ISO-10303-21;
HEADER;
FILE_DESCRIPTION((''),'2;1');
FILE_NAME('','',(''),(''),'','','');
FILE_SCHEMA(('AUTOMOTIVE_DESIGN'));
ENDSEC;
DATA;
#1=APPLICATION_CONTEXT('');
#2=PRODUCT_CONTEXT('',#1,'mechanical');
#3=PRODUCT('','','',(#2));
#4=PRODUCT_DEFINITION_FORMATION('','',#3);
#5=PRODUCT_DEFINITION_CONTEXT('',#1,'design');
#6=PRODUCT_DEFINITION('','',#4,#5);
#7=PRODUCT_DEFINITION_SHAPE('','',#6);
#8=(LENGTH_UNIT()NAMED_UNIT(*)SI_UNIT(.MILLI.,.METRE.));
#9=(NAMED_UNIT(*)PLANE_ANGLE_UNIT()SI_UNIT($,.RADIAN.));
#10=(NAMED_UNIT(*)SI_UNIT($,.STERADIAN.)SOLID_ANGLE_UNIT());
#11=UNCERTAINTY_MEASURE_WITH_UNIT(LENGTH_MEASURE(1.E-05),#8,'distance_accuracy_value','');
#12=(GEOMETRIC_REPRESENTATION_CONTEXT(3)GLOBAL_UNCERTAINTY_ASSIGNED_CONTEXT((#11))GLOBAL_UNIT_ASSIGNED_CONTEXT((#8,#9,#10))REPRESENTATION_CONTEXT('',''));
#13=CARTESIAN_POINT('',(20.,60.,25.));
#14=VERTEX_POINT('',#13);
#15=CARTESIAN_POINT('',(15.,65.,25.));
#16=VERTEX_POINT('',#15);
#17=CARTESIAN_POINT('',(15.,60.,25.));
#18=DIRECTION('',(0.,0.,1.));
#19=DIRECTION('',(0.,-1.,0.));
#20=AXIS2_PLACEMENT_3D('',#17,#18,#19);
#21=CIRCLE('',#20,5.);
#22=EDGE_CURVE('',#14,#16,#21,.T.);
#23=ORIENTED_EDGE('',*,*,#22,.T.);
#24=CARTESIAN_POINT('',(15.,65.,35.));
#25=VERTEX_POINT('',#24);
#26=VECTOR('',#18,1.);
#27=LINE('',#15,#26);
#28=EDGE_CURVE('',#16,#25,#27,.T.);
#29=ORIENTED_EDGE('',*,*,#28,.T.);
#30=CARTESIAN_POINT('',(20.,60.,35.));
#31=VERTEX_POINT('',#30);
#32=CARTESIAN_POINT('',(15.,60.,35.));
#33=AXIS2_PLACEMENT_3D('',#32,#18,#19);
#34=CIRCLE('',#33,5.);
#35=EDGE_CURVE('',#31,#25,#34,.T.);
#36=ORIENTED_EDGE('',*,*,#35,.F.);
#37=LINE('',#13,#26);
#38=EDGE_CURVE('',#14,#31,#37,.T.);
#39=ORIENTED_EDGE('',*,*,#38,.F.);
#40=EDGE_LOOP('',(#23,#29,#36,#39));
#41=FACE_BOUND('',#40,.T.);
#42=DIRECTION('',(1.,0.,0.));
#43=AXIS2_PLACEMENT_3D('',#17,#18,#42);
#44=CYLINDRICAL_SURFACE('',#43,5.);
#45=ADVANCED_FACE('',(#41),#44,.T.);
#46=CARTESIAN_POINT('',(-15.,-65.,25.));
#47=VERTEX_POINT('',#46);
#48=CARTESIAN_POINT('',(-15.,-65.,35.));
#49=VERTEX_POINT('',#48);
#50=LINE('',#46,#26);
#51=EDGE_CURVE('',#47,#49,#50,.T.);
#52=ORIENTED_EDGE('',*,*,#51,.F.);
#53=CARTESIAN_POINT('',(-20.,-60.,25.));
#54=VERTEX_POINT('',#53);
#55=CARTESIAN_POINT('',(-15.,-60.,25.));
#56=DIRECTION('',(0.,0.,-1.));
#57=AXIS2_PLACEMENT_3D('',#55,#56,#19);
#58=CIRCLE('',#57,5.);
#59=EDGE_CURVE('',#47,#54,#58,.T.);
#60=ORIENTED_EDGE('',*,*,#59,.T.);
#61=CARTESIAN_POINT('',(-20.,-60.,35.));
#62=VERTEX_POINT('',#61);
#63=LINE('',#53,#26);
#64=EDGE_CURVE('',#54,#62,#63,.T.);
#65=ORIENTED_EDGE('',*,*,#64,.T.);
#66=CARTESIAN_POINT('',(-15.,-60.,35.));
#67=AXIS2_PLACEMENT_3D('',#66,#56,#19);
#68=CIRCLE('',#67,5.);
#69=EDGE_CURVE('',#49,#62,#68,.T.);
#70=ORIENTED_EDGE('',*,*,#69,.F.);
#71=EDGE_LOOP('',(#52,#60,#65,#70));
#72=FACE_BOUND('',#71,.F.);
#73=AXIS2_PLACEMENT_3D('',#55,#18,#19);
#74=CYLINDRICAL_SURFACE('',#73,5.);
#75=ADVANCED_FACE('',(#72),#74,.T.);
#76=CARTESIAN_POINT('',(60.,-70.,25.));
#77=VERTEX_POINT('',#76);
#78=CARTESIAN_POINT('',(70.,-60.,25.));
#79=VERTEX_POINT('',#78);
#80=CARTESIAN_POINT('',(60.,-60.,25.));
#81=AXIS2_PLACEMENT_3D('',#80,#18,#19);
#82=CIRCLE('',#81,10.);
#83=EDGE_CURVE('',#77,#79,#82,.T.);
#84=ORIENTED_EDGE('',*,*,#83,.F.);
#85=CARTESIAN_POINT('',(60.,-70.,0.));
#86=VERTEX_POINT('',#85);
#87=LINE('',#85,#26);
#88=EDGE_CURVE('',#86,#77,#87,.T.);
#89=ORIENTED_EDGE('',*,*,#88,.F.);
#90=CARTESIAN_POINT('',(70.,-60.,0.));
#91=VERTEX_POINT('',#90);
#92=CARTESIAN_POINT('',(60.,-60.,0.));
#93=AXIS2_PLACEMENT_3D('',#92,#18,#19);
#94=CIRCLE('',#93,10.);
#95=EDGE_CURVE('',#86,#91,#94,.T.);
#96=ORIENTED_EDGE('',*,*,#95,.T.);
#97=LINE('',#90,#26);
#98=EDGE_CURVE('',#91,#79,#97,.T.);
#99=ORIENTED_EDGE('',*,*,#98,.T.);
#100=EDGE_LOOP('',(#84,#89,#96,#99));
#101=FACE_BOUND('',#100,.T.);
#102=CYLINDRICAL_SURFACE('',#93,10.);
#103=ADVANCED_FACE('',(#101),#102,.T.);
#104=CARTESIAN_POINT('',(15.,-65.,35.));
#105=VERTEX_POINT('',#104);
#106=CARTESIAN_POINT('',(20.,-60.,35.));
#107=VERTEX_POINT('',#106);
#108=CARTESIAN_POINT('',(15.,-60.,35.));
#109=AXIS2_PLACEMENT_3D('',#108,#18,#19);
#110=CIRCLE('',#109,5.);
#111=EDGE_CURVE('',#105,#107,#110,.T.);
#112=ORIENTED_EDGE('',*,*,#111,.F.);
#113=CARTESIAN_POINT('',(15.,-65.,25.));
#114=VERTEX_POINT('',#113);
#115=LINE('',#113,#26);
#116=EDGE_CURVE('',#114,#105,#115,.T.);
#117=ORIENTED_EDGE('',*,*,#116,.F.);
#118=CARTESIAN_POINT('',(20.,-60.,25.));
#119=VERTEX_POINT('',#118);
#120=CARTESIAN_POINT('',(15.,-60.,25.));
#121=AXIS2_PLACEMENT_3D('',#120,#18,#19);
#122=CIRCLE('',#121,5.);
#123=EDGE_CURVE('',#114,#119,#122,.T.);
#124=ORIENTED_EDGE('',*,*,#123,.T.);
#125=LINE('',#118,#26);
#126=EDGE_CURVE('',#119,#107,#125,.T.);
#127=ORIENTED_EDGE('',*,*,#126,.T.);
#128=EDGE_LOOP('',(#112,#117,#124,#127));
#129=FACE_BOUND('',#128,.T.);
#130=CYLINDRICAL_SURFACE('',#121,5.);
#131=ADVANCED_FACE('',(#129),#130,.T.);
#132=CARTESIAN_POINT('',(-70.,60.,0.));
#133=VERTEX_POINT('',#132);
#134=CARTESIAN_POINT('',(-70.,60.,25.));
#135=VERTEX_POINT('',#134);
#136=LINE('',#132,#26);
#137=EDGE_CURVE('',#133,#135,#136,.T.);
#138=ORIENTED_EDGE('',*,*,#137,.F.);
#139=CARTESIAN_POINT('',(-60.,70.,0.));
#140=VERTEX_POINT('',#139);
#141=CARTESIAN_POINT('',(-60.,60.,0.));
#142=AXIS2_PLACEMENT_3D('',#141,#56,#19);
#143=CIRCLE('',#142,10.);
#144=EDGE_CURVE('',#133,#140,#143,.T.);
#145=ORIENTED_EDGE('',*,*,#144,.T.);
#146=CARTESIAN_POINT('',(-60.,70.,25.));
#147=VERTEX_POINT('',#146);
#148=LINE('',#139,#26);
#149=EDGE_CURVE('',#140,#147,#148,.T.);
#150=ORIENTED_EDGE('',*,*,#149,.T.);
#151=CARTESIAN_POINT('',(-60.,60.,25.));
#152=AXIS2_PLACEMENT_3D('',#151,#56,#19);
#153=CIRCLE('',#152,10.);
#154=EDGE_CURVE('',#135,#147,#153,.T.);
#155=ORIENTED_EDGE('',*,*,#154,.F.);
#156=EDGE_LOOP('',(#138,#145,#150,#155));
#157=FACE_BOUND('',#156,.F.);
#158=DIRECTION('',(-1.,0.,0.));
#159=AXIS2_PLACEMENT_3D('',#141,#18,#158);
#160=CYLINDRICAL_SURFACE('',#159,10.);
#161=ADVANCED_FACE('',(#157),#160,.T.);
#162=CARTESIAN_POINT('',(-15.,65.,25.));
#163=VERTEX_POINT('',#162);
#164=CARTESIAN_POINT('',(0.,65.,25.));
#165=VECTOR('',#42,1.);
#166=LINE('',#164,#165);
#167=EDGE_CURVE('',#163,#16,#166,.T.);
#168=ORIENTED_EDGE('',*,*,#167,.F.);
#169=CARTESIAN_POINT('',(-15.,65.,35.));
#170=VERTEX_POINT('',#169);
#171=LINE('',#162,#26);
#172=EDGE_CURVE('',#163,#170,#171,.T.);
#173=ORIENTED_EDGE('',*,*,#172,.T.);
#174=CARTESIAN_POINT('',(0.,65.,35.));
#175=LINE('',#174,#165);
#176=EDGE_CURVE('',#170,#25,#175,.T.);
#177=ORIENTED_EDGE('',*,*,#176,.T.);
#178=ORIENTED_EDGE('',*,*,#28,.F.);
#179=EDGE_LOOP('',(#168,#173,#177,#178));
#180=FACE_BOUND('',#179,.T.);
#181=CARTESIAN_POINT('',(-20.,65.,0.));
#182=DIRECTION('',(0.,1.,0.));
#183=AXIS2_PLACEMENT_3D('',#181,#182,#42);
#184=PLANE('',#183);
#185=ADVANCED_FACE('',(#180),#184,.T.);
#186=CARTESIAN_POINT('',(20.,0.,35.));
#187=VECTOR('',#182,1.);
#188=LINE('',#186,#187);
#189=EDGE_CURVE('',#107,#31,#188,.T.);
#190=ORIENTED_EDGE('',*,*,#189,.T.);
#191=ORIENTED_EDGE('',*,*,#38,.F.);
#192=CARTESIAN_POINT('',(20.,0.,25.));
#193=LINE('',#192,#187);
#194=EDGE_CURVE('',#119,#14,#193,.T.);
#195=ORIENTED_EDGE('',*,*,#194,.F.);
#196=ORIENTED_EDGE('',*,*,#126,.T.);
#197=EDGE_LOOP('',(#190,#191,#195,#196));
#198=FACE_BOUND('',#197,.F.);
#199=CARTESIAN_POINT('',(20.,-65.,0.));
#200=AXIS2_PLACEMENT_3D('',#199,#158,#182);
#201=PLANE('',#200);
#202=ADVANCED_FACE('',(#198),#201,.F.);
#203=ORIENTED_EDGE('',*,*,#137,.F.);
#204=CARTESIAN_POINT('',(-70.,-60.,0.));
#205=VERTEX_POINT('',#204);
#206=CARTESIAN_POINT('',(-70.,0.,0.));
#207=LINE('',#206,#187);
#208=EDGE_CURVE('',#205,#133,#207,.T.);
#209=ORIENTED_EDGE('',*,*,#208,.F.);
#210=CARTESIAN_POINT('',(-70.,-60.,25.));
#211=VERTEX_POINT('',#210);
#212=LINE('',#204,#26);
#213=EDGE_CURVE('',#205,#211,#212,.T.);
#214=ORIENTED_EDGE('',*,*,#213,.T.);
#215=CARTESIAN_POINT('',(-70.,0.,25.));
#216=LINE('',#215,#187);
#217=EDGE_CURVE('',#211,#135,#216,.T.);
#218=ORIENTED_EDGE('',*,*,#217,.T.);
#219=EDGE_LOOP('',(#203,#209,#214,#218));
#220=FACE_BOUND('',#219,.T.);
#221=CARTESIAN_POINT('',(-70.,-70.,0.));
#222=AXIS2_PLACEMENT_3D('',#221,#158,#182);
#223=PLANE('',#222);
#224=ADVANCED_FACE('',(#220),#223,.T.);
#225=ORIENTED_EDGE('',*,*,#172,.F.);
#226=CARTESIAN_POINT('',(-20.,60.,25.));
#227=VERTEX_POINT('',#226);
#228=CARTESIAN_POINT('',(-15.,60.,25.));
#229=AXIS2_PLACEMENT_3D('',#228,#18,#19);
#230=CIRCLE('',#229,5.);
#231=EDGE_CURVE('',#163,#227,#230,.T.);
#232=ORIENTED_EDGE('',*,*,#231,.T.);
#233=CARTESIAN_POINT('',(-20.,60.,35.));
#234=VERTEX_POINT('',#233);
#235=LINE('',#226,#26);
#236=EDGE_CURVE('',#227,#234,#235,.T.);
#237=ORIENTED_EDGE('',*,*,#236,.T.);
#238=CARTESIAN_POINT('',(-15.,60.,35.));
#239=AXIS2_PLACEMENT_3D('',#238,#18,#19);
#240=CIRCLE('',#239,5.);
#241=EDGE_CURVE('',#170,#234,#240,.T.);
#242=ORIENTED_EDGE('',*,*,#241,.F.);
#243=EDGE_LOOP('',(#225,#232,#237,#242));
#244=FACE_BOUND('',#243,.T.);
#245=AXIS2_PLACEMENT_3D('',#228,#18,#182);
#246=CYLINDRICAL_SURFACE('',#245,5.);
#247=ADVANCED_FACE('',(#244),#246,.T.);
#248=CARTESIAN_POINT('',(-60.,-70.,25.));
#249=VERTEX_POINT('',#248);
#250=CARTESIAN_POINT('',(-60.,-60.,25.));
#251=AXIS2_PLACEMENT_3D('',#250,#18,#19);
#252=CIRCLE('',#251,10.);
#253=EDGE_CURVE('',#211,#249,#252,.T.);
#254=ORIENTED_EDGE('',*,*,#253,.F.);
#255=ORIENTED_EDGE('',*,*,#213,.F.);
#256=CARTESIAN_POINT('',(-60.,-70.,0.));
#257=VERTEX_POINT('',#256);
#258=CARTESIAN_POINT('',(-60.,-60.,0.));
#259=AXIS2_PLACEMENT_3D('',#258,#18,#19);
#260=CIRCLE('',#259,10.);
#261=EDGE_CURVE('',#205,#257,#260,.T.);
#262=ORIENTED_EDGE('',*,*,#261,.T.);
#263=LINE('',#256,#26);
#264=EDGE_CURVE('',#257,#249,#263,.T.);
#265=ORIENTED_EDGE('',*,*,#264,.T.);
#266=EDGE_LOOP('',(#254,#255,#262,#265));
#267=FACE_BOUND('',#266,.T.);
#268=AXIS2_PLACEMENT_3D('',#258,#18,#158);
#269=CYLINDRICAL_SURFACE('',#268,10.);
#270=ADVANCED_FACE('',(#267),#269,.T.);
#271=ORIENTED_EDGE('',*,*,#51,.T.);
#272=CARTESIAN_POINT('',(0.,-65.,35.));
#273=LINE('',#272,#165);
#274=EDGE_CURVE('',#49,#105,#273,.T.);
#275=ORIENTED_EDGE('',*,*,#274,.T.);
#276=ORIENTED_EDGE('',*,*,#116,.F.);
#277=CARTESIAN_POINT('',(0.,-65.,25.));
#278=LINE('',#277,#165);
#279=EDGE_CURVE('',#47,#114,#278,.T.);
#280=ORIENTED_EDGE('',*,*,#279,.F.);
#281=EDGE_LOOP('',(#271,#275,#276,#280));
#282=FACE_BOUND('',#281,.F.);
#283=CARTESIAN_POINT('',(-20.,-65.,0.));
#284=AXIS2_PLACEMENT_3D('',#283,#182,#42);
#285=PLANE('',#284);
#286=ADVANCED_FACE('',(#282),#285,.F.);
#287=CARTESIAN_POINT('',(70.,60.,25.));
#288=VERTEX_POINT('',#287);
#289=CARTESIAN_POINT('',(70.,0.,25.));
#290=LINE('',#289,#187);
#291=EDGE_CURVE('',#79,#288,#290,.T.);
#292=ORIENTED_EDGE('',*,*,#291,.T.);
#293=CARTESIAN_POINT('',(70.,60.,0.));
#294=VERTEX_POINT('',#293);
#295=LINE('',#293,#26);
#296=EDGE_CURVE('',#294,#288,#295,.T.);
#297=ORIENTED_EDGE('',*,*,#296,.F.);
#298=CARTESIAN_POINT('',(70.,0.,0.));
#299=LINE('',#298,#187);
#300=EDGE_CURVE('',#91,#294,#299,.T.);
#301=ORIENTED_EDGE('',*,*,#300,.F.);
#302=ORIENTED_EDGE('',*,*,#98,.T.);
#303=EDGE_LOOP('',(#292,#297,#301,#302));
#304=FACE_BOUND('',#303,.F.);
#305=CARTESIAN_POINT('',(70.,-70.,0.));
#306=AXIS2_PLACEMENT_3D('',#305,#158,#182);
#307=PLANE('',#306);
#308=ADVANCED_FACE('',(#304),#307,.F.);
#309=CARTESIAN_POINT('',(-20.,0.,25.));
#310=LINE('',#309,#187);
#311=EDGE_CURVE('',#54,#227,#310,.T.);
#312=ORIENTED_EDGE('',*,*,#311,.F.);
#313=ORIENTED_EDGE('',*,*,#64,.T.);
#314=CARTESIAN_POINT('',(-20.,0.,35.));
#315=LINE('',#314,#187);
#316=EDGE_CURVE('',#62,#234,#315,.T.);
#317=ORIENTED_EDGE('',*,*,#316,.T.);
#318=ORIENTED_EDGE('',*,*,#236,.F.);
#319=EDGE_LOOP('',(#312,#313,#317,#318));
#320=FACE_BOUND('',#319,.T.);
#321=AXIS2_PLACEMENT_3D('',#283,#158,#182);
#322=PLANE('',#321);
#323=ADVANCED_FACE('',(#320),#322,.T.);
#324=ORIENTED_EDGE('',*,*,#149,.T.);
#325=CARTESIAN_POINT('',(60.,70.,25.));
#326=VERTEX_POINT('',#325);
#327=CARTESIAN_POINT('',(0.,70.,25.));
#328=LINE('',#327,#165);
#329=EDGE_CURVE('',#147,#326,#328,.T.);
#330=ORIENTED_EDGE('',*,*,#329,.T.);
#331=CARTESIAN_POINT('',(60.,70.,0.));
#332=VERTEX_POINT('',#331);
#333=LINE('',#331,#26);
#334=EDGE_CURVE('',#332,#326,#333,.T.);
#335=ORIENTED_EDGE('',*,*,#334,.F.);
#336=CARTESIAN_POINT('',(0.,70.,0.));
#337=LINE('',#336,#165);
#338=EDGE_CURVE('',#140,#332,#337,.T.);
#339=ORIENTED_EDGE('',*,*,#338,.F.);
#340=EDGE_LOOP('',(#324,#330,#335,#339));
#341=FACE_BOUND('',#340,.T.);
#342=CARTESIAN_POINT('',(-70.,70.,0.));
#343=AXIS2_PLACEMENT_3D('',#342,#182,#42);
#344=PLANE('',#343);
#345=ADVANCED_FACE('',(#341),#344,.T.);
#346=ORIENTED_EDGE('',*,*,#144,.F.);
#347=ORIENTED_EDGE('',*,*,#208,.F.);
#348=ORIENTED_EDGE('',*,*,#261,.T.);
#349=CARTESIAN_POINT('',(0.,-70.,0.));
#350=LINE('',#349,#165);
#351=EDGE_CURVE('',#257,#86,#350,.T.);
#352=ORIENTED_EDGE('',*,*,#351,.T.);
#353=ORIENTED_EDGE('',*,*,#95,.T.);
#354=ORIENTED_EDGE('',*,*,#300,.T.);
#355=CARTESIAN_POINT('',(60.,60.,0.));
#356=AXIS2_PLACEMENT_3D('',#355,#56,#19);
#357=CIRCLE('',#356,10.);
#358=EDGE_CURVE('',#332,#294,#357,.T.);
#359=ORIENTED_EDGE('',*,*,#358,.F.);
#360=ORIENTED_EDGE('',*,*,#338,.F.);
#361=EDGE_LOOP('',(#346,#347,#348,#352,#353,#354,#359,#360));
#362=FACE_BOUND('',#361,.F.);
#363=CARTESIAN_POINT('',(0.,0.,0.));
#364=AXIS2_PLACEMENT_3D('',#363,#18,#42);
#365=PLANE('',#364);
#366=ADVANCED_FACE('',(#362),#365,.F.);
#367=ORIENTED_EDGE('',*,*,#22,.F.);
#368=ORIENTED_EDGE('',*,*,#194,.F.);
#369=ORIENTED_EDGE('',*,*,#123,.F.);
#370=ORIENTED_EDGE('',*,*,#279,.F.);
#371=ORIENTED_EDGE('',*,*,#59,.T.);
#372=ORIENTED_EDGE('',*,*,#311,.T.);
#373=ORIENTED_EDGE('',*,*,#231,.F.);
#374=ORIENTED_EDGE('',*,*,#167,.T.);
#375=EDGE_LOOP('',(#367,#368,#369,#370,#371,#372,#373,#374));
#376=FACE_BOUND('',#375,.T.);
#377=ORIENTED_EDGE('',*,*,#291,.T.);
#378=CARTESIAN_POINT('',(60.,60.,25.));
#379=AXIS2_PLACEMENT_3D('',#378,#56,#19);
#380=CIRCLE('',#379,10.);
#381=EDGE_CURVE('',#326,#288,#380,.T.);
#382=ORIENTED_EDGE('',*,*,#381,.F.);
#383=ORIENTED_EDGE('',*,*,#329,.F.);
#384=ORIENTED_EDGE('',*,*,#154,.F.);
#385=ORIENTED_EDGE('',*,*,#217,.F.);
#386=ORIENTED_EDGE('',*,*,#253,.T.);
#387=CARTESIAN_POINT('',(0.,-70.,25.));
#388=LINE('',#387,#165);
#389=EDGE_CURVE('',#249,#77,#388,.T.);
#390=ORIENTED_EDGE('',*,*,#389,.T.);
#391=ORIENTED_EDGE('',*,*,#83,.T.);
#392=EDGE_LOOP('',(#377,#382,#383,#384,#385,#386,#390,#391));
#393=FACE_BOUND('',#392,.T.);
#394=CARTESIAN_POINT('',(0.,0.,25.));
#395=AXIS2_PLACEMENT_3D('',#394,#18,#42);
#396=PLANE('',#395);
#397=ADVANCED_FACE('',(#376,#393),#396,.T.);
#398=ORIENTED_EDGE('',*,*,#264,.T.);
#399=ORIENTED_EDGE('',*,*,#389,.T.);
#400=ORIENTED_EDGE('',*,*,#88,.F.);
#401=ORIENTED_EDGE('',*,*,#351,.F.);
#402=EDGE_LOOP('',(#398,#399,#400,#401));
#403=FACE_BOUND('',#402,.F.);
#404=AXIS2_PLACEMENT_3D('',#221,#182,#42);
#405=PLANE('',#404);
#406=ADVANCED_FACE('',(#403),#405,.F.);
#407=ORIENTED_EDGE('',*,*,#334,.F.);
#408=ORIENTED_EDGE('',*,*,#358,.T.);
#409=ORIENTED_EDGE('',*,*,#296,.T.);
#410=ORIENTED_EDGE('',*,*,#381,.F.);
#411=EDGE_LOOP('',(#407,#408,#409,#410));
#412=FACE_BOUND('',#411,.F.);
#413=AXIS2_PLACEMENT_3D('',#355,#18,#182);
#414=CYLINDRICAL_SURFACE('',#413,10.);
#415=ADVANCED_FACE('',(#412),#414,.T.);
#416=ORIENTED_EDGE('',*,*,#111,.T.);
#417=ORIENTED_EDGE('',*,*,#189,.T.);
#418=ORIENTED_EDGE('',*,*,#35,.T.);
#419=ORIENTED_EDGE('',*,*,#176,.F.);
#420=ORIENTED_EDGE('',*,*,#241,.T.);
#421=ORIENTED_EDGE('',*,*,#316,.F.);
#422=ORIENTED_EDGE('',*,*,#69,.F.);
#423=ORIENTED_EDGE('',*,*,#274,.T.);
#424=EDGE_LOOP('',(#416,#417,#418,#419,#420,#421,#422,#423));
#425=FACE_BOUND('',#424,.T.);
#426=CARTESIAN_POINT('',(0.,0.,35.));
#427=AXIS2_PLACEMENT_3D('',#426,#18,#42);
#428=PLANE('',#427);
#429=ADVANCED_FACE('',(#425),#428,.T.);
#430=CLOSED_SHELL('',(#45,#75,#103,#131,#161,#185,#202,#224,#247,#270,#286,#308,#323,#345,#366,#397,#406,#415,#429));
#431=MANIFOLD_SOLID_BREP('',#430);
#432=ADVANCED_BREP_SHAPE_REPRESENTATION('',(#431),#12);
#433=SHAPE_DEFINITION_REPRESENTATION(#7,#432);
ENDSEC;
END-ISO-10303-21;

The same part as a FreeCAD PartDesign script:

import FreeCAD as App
import Part
import Sketcher

V = App.Vector
Q = App.Units.Quantity


def edges_at(feature, points):
    """Names of the edges that pass closest to the given points."""
    edges = feature.Shape.Edges
    near = lambda p: min(range(len(edges)), key=lambda i: edges[i].distToShape(Part.Vertex(*p))[0])
    return sorted({f"Edge{near(p) + 1}" for p in points})


def add_polygon(sketch, points):
    """Adds a closed chain of lines whose ends are joined by coincident constraints."""
    first, n = sketch.GeometryCount, len(points)
    for a, b in zip(points, points[1:] + points[:1]):
        sketch.addGeometry(Part.LineSegment(App.Vector(*a, 0), App.Vector(*b, 0)), False)
    for i in range(n):
        sketch.addConstraint(Sketcher.Constraint("Coincident", first + i, 2, first + (i + 1) % n, 1))

doc = App.newDocument("Part")
body = doc.addObject("PartDesign::Body", "Body")

# Sketch on XY plane
sketch1 = body.newObject("Sketcher::SketchObject", "Sketch")
sketch1.AttachmentSupport = (doc.getObject("XY_Plane"), [""])
sketch1.MapMode = "FlatFace"
add_polygon(sketch1, [(-70, 70), (-70, -70), (70, -70), (70, 70)])  # lines 0-3
add_polygon(sketch1, [(20, -65), (-20, -65), (-20, 65), (20, 65)])  # lines 4-7
sketch1.addConstraint([
    Sketcher.Constraint("Vertical", 0),
    Sketcher.Constraint("Horizontal", 1),
    Sketcher.Constraint("Vertical", 2),
    Sketcher.Constraint("Horizontal", 3),
    Sketcher.Constraint("Horizontal", 4),
    Sketcher.Constraint("Vertical", 5),
    Sketcher.Constraint("Horizontal", 6),
    Sketcher.Constraint("Vertical", 7),
    Sketcher.Constraint("Symmetric", 0, 2, 2, 2, -1, 1),
    Sketcher.Constraint("Symmetric", 4, 2, 6, 2, -1, 1),
    Sketcher.Constraint("Equal", 3, 0),
    Sketcher.Constraint("DistanceX", 1, 1, 1, 2, Q("140 mm")),
    Sketcher.Constraint("DistanceX", 4, 2, 4, 1, Q("40 mm")),
    Sketcher.Constraint("DistanceY", 5, 1, 5, 2, Q("130 mm")),
])
pad1 = body.newObject("PartDesign::Pad", "Pad")
pad1.Profile = sketch1
pad1.Length = 25

# Sketch on XY plane
sketch2 = body.newObject("Sketcher::SketchObject", "Sketch001")
sketch2.AttachmentSupport = (doc.getObject("XY_Plane"), [""])
sketch2.MapMode = "FlatFace"
add_polygon(sketch2, [(-20, 65), (-20, -65), (20, -65), (20, 65)])  # lines 0-3
sketch2.addConstraint([
    Sketcher.Constraint("Vertical", 0),
    Sketcher.Constraint("Horizontal", 1),
    Sketcher.Constraint("Vertical", 2),
    Sketcher.Constraint("Horizontal", 3),
    Sketcher.Constraint("Symmetric", 0, 2, 2, 2, -1, 1),
    Sketcher.Constraint("DistanceX", 1, 1, 1, 2, Q("40 mm")),
    Sketcher.Constraint("DistanceY", 0, 2, 0, 1, Q("130 mm")),
])
pad2 = body.newObject("PartDesign::Pad", "Pad001")
pad2.Profile = sketch2
pad2.Length = 35
doc.recompute()

fillet = body.newObject("PartDesign::Fillet", "Fillet")
fillet.Base = (pad2, edges_at(pad2, [
    (-70, 70, 12.5),
    (70, 70, 12.5),
    (70, -70, 12.5),
    (-70, -70, 12.5),
]))
fillet.Radius = 10
doc.recompute()

fillet2 = body.newObject("PartDesign::Fillet", "Fillet001")
fillet2.Base = (fillet, edges_at(fillet, [
    (-20, -65, 30),
    (20, -65, 30),
    (20, 65, 30),
    (-20, 65, 30),
]))
fillet2.Radius = 5

doc.recompute()
